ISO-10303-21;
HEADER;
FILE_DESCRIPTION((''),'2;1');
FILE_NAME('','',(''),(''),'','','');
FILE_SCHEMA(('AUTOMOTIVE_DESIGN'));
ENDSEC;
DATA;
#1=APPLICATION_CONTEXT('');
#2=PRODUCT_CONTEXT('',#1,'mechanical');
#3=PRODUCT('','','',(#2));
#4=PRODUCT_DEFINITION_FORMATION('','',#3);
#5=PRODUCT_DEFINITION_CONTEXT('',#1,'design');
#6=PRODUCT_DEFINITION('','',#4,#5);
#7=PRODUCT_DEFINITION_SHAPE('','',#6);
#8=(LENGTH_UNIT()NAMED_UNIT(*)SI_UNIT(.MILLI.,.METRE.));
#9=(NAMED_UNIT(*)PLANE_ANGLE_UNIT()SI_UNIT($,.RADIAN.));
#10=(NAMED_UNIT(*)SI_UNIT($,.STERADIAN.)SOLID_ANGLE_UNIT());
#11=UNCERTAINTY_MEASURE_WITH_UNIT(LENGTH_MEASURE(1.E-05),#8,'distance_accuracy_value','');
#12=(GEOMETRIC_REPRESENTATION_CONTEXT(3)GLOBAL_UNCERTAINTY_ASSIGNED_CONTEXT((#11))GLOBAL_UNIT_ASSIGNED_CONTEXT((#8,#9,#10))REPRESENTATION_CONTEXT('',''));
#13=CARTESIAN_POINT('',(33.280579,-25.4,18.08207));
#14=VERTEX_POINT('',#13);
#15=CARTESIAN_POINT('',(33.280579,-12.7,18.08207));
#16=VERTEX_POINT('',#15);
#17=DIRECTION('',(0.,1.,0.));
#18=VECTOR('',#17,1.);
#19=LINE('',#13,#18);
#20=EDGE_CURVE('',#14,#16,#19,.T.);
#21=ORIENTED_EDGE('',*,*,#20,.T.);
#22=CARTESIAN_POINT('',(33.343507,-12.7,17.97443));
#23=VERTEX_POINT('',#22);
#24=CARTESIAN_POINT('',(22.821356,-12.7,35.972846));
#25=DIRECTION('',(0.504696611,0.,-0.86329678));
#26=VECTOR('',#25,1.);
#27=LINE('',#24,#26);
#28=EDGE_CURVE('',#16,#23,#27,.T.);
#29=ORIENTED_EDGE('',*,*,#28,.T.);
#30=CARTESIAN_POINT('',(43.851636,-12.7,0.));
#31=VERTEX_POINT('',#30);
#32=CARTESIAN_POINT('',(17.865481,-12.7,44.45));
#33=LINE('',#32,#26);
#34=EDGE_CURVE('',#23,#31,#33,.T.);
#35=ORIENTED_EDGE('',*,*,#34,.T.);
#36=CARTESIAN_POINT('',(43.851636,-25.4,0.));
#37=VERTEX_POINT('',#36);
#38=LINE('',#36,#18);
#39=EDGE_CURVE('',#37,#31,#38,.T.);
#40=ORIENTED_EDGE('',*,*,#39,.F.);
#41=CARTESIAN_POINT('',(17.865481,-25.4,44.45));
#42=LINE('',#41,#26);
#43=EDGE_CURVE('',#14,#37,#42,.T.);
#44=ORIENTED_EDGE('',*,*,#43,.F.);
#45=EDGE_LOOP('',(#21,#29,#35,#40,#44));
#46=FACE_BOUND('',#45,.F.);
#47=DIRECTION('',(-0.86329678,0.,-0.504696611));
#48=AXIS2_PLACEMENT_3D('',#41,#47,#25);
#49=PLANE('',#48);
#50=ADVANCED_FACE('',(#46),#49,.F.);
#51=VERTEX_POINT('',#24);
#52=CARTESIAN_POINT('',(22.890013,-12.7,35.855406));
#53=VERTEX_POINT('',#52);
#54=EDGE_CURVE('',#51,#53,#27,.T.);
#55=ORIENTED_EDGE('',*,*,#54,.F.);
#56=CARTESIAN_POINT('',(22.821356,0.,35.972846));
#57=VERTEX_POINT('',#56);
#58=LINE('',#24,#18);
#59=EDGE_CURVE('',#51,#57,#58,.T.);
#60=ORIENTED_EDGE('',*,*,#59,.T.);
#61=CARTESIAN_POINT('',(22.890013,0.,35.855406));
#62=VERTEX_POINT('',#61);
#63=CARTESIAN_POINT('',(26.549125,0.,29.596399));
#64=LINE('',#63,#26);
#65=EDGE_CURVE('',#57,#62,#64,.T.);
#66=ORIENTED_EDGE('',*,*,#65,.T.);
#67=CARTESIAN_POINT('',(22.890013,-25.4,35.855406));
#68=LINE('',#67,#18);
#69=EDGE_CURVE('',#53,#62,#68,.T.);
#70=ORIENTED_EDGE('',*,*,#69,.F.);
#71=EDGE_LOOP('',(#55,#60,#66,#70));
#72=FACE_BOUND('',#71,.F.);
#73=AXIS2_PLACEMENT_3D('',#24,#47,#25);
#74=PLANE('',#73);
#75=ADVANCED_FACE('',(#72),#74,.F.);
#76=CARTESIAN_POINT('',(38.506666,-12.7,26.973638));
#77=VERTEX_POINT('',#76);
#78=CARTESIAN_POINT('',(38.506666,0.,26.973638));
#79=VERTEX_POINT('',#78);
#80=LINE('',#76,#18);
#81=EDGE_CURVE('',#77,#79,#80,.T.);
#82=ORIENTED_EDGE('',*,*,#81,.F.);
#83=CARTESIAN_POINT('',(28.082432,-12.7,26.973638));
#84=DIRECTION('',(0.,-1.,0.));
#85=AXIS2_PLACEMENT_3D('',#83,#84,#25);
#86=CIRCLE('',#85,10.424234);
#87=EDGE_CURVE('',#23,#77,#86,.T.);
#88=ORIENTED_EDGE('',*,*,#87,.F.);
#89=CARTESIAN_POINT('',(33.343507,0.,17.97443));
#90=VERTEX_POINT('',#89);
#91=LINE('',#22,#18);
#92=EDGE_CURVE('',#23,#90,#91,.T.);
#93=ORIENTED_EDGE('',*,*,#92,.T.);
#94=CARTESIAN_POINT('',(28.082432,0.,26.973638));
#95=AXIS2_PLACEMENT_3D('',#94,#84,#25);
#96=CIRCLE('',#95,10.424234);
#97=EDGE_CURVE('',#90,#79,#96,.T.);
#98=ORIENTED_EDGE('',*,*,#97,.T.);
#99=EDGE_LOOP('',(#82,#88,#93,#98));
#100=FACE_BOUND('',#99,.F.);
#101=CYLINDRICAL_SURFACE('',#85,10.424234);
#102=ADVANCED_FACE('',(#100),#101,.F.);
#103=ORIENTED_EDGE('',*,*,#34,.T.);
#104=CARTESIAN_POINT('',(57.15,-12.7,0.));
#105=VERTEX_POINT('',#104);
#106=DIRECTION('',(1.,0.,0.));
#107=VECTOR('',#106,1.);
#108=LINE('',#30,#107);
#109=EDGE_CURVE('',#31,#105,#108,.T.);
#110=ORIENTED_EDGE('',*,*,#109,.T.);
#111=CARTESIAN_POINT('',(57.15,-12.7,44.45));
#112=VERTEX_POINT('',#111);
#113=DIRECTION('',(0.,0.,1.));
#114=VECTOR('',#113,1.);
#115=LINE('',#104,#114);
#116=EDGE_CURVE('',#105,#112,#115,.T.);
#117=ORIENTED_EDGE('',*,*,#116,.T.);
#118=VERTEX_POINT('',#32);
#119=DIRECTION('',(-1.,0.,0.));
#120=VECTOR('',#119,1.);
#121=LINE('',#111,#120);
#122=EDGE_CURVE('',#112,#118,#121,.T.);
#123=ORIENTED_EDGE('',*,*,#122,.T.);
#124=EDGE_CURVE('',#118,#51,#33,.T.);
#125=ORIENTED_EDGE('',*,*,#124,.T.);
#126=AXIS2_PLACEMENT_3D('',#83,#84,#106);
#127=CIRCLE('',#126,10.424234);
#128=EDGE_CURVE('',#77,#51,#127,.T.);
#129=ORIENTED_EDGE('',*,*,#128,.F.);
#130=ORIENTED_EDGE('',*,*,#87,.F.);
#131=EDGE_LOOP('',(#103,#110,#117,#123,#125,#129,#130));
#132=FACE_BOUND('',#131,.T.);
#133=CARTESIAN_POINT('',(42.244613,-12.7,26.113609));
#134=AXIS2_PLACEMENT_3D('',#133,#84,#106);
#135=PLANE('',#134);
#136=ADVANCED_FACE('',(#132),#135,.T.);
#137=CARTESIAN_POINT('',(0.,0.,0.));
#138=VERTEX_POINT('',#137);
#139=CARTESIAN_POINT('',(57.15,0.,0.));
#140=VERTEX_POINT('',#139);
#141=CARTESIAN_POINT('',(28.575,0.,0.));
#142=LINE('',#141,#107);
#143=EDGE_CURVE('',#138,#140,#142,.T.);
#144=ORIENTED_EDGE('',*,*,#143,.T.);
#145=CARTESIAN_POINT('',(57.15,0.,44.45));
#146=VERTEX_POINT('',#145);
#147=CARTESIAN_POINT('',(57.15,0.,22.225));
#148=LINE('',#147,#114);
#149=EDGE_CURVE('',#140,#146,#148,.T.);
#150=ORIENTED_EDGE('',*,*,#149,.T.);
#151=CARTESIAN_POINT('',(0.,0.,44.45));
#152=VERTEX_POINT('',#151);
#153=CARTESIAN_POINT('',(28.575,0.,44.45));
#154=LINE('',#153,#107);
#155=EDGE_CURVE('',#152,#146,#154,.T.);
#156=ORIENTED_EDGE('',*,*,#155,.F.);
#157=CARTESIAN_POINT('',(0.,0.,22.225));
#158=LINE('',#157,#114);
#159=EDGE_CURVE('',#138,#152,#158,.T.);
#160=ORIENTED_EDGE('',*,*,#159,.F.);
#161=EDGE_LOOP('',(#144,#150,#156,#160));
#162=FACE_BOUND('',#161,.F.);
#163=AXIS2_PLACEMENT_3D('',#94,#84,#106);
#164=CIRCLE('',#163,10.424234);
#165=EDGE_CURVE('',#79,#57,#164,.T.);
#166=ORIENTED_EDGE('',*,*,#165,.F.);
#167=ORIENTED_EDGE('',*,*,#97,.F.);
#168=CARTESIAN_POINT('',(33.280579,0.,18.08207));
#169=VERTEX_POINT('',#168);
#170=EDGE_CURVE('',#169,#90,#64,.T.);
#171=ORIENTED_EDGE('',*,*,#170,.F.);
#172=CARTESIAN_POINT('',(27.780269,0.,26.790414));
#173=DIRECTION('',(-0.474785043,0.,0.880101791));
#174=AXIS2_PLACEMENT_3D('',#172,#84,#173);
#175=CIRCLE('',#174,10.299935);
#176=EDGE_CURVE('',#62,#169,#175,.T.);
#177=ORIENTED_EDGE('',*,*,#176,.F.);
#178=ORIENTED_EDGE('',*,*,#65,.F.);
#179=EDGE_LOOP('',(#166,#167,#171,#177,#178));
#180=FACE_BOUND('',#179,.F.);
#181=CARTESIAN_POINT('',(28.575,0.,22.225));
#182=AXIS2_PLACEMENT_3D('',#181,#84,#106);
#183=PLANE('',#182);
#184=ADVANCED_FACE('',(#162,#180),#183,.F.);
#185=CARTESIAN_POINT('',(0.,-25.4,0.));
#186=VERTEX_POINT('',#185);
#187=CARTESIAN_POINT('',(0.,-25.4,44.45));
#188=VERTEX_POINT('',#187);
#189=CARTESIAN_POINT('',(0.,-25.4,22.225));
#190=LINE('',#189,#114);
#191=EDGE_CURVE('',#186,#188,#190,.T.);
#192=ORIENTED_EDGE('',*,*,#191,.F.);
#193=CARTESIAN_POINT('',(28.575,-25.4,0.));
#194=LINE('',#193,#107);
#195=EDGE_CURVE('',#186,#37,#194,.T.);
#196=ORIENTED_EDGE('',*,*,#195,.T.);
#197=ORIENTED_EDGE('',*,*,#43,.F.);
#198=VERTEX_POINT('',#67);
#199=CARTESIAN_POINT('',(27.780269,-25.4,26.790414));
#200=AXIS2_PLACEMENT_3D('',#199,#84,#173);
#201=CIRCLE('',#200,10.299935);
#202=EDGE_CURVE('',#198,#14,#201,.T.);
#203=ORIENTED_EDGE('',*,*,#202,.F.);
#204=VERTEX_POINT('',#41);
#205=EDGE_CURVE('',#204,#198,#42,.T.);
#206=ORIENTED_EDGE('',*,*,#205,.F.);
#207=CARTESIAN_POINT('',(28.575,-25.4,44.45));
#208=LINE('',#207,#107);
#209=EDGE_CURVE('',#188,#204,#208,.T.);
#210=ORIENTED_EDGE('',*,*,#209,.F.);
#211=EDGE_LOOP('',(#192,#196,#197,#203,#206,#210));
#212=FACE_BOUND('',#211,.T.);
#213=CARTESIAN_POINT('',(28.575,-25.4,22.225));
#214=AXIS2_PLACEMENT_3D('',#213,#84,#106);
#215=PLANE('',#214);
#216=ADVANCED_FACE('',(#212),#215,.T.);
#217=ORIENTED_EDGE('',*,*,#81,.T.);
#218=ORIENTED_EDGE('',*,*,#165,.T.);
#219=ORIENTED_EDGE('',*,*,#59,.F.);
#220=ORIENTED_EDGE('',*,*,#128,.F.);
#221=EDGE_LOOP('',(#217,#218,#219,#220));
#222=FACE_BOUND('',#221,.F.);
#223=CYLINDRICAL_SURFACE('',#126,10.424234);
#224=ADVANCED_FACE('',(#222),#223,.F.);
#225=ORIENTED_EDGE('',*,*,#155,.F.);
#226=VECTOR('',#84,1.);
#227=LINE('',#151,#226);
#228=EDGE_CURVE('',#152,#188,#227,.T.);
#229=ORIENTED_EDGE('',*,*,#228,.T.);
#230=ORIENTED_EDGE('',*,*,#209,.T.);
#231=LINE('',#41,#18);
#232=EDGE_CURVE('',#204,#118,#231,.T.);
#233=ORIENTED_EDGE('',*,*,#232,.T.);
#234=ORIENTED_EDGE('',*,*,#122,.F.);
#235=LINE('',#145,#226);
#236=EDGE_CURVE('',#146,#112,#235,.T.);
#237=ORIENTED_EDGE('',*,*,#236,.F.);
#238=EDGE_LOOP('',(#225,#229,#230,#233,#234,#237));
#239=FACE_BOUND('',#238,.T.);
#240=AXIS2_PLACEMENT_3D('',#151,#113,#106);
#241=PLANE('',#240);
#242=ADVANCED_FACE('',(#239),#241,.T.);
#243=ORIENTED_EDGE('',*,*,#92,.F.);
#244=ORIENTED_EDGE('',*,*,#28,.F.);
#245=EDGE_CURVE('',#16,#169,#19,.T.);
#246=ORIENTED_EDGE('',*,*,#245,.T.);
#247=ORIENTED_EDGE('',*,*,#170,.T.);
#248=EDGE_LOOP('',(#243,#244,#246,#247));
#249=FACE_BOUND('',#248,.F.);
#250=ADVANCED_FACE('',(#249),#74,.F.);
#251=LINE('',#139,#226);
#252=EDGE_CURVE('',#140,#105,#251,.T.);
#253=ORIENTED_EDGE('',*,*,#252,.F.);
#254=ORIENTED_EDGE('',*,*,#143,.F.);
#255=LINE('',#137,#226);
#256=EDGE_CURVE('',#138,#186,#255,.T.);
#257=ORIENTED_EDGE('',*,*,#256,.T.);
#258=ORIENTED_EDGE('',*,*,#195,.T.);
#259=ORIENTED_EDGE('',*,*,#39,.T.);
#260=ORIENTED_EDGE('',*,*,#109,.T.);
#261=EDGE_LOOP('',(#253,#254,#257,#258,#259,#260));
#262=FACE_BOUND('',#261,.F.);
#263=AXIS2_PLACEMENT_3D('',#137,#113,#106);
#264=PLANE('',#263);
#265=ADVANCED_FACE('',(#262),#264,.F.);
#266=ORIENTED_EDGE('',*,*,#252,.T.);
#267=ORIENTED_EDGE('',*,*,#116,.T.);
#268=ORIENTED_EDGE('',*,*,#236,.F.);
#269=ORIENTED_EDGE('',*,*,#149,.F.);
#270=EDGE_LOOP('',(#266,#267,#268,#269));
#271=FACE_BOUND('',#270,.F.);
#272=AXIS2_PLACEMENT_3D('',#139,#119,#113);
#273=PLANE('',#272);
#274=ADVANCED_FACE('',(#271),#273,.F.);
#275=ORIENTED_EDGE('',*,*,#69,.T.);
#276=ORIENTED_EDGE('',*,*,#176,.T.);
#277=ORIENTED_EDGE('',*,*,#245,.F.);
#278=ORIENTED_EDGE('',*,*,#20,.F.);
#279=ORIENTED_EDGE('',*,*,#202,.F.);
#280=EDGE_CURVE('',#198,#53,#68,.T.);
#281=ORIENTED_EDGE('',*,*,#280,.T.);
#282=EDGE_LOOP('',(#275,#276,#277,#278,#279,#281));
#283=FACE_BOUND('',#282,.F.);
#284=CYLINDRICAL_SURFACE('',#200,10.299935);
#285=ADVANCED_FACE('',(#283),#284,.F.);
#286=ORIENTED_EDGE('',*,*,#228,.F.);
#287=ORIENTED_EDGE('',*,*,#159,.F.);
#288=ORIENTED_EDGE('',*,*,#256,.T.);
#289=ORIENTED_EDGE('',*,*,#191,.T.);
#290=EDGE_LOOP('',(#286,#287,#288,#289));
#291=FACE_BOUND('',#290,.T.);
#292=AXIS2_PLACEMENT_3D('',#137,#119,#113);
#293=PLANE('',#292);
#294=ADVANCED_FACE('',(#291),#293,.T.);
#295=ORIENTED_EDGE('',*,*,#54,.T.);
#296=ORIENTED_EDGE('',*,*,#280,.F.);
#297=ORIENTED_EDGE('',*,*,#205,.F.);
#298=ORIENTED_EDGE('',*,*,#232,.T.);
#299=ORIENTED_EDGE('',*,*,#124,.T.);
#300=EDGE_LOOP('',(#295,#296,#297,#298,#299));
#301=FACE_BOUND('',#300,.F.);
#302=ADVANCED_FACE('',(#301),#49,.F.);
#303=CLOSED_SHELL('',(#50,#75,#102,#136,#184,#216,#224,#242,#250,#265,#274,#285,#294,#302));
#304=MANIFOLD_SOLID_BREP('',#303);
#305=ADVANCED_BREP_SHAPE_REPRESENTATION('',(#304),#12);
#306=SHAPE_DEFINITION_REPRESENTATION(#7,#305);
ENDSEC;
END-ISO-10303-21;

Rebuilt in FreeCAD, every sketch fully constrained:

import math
import FreeCAD as App
import Part
import Sketcher

V = App.Vector
Q = App.Units.Quantity


def add_polygon(sketch, points):
    """Adds a closed chain of lines whose ends are joined by coincident constraints."""
    first, n = sketch.GeometryCount, len(points)
    for a, b in zip(points, points[1:] + points[:1]):
        sketch.addGeometry(Part.LineSegment(App.Vector(*a, 0), App.Vector(*b, 0)), False)
    for i in range(n):
        sketch.addConstraint(Sketcher.Constraint("Coincident", first + i, 2, first + (i + 1) % n, 1))

doc = App.newDocument("Part")
body = doc.addObject("PartDesign::Body", "Body")

# Sketch on XZ plane
sketch1 = doc.addObject("Sketcher::SketchObject", "Sketch")
body.addObject(sketch1)
sketch1.AttachmentSupport = (doc.XZ_Plane, [""])
sketch1.MapMode = "FlatFace"
add_polygon(sketch1, [(0, 44), (0, 0), (57, 0), (57, 44)])  # lines 0-3
sketch1.addConstraint([
    Sketcher.Constraint("Vertical", 0),
    Sketcher.Constraint("Horizontal", 1),
    Sketcher.Constraint("Vertical", 2),
    Sketcher.Constraint("Horizontal", 3),
    Sketcher.Constraint("Coincident", 0, 2, -1, 1),
    Sketcher.Constraint("DistanceX", 1, 1, 1, 2, Q("2.25 in")),
    Sketcher.Constraint("DistanceY", 0, 2, 0, 1, Q("1.75 in")),
])
pad1 = doc.addObject("PartDesign::Pad", "Pad")
body.addObject(pad1)
pad1.Profile = sketch1
pad1.Length = Q("1 in")

# Sketch on XZ plane
sketch2 = doc.addObject("Sketcher::SketchObject", "Sketch001")
body.addObject(sketch2)
sketch2.AttachmentSupport = (doc.XZ_Plane, [""])
sketch2.MapMode = "FlatFace"
sketch2.AttachmentOffset = App.Placement(V(0, 0, 1 * 25.4), App.Rotation())
add_polygon(sketch2, [(57, 44), (18, 44), (44, 0), (57, 0)])  # lines 0-3
sketch2.addConstraint([
    Sketcher.Constraint("Horizontal", 0),
    Sketcher.Constraint("Horizontal", 2),
    Sketcher.Constraint("Vertical", 3),
    Sketcher.Constraint("PointOnObject", 1, 2, -1),
    Sketcher.Constraint("DistanceY", 3, 1, 3, 2, Q("1.75 in")),
    Sketcher.Constraint("DistanceX", -1, 1, 2, 2, Q("2.25 in")),
    Sketcher.Constraint("DistanceX", 0, 2, 0, 1, 39.284519),
    Sketcher.Constraint("DistanceX", 2, 1, 2, 2, 13.298364),
])
pocket1 = doc.addObject("PartDesign::Pocket", "Pocket")
body.addObject(pocket1)
pocket1.Profile = sketch2
pocket1.Length = Q("0.5 in")

# Sketch on XZ plane
sketch3 = doc.addObject("Sketcher::SketchObject", "Sketch002")
body.addObject(sketch3)
sketch3.AttachmentSupport = (doc.XZ_Plane, [""])
sketch3.MapMode = "FlatFace"
sketch3.AttachmentOffset = App.Placement(V(0, 0, 0.5 * 25.4), App.Rotation())
sketch3.addGeometry([
    Part.ArcOfCircle(Part.Circle(V(28, 27, 0), V(0, 0, 1), 10), math.radians(-60), math.radians(0)),
    Part.ArcOfCircle(Part.Circle(V(28, 27, 0), V(0, 0, 1), 10), math.radians(0), math.radians(120)),
    Part.LineSegment(V(23, 36, 0), V(33, 18, 0)),
], False)
sketch3.addConstraint([
    Sketcher.Constraint("Tangent", 0, 2, 1, 1),
    Sketcher.Constraint("Coincident", 1, 2, 2, 1),
    Sketcher.Constraint("Coincident", 2, 2, 0, 1),
    Sketcher.Constraint("Equal", 0, 1),
    Sketcher.Constraint("Horizontal", 1, 3, 0, 2),
    Sketcher.Constraint("Radius", 0, 10.424234),
    Sketcher.Constraint("DistanceX", -1, 1, 0, 3, 28.082432),
    Sketcher.Constraint("DistanceY", -1, 1, 2, 2, 17.97443),
    Sketcher.Constraint("DistanceX", 1, 2, 0, 2, 15.68531),
    Sketcher.Constraint("DistanceX", 2, 2, 0, 2, 5.163158),
])
pocket2 = doc.addObject("PartDesign::Pocket", "Pocket001")
body.addObject(pocket2)
pocket2.Profile = sketch3
pocket2.Type = "ThroughAll"

# Sketch on XZ plane
sketch4 = doc.addObject("Sketcher::SketchObject", "Sketch003")
body.addObject(sketch4)
sketch4.AttachmentSupport = (doc.XZ_Plane, [""])
sketch4.MapMode = "FlatFace"
sketch4.AttachmentOffset = App.Placement(V(0, 0, 1 * 25.4), App.Rotation())
sketch4.addGeometry([
    Part.LineSegment(V(33, 18, 0), V(23, 36, 0)),
    Part.ArcOfCircle(Part.Circle(V(28, 27, 0), V(0, 0, 1), 10), math.radians(118), math.radians(302)),
], False)
sketch4.addConstraint([
    Sketcher.Constraint("Coincident", 0, 1, 1, 2),
    Sketcher.Constraint("Coincident", 1, 1, 0, 2),
    Sketcher.Constraint("Radius", 1, 10.299935),
    Sketcher.Constraint("DistanceX", -1, 1, 1, 3, 27.780269),
    Sketcher.Constraint("DistanceX", -1, 1, 0, 1, 33.280579),
    Sketcher.Constraint("DistanceY", -1, 1, 0, 1, 18.08207),
    Sketcher.Constraint("DistanceY", 1, 3, 1, 1, 9.064992),
])
pocket3 = doc.addObject("PartDesign::Pocket", "Pocket002")
body.addObject(pocket3)
pocket3.Profile = sketch4
pocket3.Type = "ThroughAll"

doc.recompute()
